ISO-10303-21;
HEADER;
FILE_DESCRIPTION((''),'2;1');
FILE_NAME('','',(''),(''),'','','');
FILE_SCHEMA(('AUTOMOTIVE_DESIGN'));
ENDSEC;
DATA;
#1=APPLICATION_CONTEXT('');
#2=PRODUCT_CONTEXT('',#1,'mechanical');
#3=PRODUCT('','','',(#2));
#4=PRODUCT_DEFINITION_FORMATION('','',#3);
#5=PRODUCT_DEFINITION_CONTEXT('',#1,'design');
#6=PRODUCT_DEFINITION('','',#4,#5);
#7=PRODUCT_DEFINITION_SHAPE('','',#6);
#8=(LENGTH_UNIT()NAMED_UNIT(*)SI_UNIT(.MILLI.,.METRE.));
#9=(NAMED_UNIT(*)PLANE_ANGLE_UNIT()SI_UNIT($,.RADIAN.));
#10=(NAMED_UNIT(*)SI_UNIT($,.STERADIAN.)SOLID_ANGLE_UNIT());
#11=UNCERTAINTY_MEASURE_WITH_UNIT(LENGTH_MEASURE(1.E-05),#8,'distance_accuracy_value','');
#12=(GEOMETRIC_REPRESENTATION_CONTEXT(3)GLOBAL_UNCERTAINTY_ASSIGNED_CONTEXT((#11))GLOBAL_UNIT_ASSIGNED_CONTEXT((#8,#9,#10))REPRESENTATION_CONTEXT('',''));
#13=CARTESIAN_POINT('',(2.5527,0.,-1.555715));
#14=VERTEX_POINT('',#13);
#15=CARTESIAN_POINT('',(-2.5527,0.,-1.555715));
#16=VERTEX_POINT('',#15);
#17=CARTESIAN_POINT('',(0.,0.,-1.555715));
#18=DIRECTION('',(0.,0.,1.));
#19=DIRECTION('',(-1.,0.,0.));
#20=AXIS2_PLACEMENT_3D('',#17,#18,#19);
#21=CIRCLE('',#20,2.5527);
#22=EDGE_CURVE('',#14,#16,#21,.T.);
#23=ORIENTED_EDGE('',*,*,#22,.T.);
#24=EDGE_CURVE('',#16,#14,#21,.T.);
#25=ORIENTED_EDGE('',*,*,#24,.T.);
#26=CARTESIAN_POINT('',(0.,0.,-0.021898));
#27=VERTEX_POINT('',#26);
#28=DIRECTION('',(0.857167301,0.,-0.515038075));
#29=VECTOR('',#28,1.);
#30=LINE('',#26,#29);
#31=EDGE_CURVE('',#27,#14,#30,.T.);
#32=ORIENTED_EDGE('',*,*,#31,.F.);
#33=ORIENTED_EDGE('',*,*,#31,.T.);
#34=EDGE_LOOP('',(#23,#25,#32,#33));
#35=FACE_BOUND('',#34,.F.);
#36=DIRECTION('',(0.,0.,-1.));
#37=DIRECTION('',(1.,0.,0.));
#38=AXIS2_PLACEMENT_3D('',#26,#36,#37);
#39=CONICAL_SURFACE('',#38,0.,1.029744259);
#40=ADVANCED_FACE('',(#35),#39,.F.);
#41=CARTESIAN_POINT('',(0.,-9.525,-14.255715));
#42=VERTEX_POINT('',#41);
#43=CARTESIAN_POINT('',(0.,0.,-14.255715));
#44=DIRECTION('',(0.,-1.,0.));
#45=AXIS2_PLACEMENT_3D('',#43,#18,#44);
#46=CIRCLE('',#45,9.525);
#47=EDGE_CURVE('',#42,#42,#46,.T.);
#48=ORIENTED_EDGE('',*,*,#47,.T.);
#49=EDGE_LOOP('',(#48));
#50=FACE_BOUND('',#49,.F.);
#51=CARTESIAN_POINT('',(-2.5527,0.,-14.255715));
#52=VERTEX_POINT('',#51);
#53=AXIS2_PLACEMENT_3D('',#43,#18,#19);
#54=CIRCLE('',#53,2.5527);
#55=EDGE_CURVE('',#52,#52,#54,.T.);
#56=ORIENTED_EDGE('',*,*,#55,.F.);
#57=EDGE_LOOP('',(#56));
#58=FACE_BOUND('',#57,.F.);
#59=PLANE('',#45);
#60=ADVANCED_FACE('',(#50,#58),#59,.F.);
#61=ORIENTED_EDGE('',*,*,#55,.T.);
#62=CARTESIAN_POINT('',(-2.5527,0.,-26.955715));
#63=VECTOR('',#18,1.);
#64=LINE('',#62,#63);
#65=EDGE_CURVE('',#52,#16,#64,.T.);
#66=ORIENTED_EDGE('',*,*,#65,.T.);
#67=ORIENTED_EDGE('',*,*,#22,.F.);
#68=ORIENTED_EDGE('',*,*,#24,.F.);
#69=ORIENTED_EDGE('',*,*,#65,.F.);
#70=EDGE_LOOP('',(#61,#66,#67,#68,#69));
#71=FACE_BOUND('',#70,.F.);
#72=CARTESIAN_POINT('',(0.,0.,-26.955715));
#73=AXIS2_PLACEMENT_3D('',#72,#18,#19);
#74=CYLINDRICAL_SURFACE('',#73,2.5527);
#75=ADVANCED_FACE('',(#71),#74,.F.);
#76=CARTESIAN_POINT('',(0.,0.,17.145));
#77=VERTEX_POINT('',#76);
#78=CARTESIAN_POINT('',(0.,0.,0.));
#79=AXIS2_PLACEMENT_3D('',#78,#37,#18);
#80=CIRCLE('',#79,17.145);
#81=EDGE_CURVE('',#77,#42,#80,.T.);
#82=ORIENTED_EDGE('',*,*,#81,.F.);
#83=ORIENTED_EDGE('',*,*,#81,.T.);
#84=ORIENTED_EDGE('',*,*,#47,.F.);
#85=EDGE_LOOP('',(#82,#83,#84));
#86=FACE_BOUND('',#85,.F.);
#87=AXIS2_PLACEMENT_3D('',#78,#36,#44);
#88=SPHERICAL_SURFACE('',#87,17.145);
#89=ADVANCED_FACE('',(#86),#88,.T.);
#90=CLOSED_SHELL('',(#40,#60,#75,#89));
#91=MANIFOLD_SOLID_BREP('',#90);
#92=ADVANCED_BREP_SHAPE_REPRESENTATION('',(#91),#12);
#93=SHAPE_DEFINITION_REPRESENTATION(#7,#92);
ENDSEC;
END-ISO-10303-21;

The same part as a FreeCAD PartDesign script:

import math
import FreeCAD as App
import Part
import Sketcher
Q = App.Units.Quantity

doc = App.newDocument("Part")
body = doc.addObject("PartDesign::Body", "Body")

sketch1 = body.newObject("Sketcher::SketchObject", "Sketch")
sketch1.AttachmentSupport = (doc.getObject("YZ_Plane"), [""])
sketch1.MapMode = "FlatFace"
sketch1.addGeometry([
    Part.LineSegment(App.Vector(0, -14, 0), App.Vector(0, 17, 0)),
    Part.ArcOfCircle(Part.Circle(App.Vector(0, 0, 0), App.Vector(0, 0, 1), 17), math.radians(90), math.radians(236)),
    Part.LineSegment(App.Vector(-10, -14, 0), App.Vector(0, -14, 0)),
], False)
sketch1.addConstraint([
    Sketcher.Constraint("Coincident", 0, 2, 1, 1),
    Sketcher.Constraint("Coincident", 1, 2, 2, 1),
    Sketcher.Constraint("Coincident", 2, 2, 0, 1),
    Sketcher.Constraint("Vertical", 0),
    Sketcher.Constraint("Horizontal", 2),
    Sketcher.Constraint("Coincident", 1, 3, -1, 1),
    Sketcher.Constraint("PointOnObject", 0, 2, -2),
    Sketcher.Constraint("Radius", 1, Q("0.675 in")),
    Sketcher.Constraint("DistanceX", 2, 1, 2, 2, Q("0.375 in")),
])
revolution = body.newObject("PartDesign::Revolution", "Revolution")
revolution.Profile = sketch1
revolution.ReferenceAxis = (sketch1, ["V_Axis"])
revolution.Angle = 360

sketch2 = body.newObject("Sketcher::SketchObject", "Sketch001")
sketch2.AttachmentSupport = (doc.getObject("XY_Plane"), [""])
sketch2.MapMode = "FlatFace"
sketch2.AttachmentOffset = App.Placement(App.Vector(0, 0, -14.255715), App.Rotation())
sketch2.addGeometry(Part.Circle(App.Vector(0, 0, 0), App.Vector(0, 0, 1), 2.6), False)
sketch2.addConstraint([
    Sketcher.Constraint("Coincident", 0, 3, -1, 1),
    Sketcher.Constraint("Diameter", 0, Q("0.201 in")),
])
doc.recompute()
hole = body.newObject("PartDesign::Hole", "Hole")
hole.Profile = sketch2
hole.ThreadType = "None"
hole.Diameter = Q("0.201 in")
hole.DepthType = "Dimension"
hole.Depth = Q("0.5 in")
hole.DrillPoint = "Angled"
hole.DrillPointAngle = 118
hole.Reversed = True

doc.recompute()
